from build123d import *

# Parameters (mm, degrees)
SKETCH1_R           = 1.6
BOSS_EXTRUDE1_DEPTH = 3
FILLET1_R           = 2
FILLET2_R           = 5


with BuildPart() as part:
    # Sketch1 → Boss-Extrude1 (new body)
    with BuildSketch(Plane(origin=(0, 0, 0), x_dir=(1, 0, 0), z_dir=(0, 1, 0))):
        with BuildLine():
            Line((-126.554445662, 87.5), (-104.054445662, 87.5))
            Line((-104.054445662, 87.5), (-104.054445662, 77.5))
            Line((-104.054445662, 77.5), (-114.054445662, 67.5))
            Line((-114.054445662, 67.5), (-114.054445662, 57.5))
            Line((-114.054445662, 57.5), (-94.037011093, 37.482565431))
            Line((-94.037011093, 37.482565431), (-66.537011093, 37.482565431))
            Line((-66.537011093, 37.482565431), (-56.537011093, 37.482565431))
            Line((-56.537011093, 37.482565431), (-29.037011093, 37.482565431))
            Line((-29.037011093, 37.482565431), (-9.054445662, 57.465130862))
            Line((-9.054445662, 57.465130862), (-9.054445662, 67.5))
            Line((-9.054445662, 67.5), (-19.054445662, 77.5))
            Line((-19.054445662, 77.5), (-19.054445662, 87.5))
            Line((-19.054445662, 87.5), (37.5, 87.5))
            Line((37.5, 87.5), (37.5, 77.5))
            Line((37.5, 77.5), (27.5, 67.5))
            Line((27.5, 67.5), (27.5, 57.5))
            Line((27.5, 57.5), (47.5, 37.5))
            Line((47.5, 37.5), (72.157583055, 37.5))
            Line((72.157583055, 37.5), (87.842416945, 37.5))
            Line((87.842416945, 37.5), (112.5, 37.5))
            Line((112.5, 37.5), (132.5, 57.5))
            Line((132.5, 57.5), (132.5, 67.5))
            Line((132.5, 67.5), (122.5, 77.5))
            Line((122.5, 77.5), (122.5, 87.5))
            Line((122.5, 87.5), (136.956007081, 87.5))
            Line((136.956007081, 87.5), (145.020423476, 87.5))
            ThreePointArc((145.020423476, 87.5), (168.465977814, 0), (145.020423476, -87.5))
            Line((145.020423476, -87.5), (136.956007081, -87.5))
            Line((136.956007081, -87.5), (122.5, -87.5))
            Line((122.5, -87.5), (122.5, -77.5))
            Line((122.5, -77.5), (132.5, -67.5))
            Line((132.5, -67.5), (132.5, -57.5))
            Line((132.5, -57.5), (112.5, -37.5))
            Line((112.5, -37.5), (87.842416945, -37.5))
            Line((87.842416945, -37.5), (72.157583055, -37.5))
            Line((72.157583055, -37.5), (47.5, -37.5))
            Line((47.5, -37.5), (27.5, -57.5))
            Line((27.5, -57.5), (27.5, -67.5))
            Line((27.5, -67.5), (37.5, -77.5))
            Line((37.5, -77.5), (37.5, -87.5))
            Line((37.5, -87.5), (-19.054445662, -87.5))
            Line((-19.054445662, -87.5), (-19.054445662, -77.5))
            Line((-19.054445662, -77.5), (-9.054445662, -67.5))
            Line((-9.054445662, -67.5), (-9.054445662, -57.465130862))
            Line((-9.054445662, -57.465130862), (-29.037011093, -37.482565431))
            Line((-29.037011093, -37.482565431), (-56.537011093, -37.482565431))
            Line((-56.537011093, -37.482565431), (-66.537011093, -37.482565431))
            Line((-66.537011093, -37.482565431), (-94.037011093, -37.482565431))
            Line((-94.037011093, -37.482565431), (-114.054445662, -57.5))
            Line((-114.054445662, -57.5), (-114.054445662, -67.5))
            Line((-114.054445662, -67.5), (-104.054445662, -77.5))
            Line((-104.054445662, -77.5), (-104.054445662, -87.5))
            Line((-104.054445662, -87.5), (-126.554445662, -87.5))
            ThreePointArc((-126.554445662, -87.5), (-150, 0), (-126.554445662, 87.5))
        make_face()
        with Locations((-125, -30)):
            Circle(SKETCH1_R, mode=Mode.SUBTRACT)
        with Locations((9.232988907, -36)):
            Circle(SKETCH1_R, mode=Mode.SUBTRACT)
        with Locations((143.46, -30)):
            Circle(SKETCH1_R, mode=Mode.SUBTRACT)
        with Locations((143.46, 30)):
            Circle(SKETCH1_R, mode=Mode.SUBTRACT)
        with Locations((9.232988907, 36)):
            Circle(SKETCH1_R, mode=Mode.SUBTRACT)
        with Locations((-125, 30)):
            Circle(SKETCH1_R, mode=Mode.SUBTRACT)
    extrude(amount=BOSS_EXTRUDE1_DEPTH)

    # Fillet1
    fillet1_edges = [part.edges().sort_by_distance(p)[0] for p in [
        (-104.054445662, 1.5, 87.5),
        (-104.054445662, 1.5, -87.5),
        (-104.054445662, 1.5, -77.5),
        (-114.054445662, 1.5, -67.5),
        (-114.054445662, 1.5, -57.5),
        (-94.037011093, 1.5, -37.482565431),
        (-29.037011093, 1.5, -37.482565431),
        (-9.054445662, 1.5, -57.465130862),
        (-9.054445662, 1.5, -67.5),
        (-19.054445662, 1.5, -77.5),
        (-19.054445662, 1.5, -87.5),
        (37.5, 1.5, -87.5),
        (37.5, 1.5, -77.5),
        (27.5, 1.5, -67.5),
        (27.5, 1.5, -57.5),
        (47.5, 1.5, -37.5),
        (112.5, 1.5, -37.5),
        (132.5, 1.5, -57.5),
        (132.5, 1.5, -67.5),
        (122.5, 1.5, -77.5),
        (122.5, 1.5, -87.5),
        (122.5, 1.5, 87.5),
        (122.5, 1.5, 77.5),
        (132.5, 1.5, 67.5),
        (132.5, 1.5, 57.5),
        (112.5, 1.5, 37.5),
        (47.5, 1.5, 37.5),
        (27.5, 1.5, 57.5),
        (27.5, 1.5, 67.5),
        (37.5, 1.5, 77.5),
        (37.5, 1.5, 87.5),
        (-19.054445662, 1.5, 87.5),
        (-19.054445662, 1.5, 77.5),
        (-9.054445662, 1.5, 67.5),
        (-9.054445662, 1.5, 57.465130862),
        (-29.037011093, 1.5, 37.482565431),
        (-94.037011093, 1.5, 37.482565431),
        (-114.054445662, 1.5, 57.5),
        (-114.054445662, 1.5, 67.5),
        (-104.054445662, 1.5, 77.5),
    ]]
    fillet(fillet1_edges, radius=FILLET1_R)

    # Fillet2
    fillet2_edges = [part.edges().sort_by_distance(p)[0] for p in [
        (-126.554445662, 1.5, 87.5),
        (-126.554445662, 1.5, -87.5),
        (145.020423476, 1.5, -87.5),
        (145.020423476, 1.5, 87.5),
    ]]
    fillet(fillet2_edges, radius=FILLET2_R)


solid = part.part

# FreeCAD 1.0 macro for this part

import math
import FreeCAD as App
import Part
import Sketcher

V = App.Vector
Q = App.Units.Quantity


def edges_at(feature, points):
    """Names of the edges that pass closest to the given points."""
    edges = feature.Shape.Edges
    near = lambda p: min(range(len(edges)), key=lambda i: edges[i].distToShape(Part.Vertex(*p))[0])
    return sorted({f"Edge{near(p) + 1}" for p in points})

doc = App.newDocument("Part")
body = doc.addObject("PartDesign::Body", "Body")

# Sketch on XZ plane
sketch1 = doc.addObject("Sketcher::SketchObject", "Sketch")
body.addObject(sketch1)
sketch1.AttachmentSupport = (doc.XZ_Plane, [""])
sketch1.MapMode = "FlatFace"
sketch1.addGeometry(Part.LineSegment(V(-104.1, -87.5, 0), V(-126.6, -87.5, 0)), False)
sketch1.addGeometry(Part.ArcOfCircle(Part.Circle(V(25, 0, 0), V(0, 0, 1), 175), math.radians(150), math.radians(210)), False)
sketch1.addGeometry(Part.LineSegment(V(-126.6, 87.5, 0), V(-104.1, 87.5, 0)), False)
sketch1.addGeometry(Part.LineSegment(V(-104.1, 87.5, 0), V(-104.1, 77.5, 0)), False)
sketch1.addGeometry(Part.LineSegment(V(-104.1, 77.5, 0), V(-114.1, 67.5, 0)), False)
sketch1.addGeometry(Part.LineSegment(V(-114.1, 67.5, 0), V(-114.1, 57.5, 0)), False)
sketch1.addGeometry(Part.LineSegment(V(-114.1, 57.5, 0), V(-94, 37.5, 0)), False)
sketch1.addGeometry(Part.LineSegment(V(-94, 37.5, 0), V(-29, 37.5, 0)), False)
sketch1.addGeometry(Part.LineSegment(V(-29, 37.5, 0), V(-9.1, 57.5, 0)), False)
sketch1.addGeometry(Part.LineSegment(V(-9.1, 57.5, 0), V(-9.1, 67.5, 0)), False)
sketch1.addGeometry(Part.LineSegment(V(-9.1, 67.5, 0), V(-19.1, 77.5, 0)), False)
sketch1.addGeometry(Part.LineSegment(V(-19.1, 77.5, 0), V(-19.1, 87.5, 0)), False)
sketch1.addGeometry(Part.LineSegment(V(-19.1, 87.5, 0), V(37.5, 87.5, 0)), False)
sketch1.addGeometry(Part.LineSegment(V(37.5, 87.5, 0), V(37.5, 77.5, 0)), False)
sketch1.addGeometry(Part.LineSegment(V(37.5, 77.5, 0), V(27.5, 67.5, 0)), False)
sketch1.addGeometry(Part.LineSegment(V(27.5, 67.5, 0), V(27.5, 57.5, 0)), False)
sketch1.addGeometry(Part.LineSegment(V(27.5, 57.5, 0), V(47.5, 37.5, 0)), False)
sketch1.addGeometry(Part.LineSegment(V(47.5, 37.5, 0), V(112.5, 37.5, 0)), False)
sketch1.addGeometry(Part.LineSegment(V(112.5, 37.5, 0), V(132.5, 57.5, 0)), False)
sketch1.addGeometry(Part.LineSegment(V(132.5, 57.5, 0), V(132.5, 67.5, 0)), False)
sketch1.addGeometry(Part.LineSegment(V(132.5, 67.5, 0), V(122.5, 77.5, 0)), False)
sketch1.addGeometry(Part.LineSegment(V(122.5, 77.5, 0), V(122.5, 87.5, 0)), False)
sketch1.addGeometry(Part.LineSegment(V(122.5, 87.5, 0), V(145, 87.5, 0)), False)
sketch1.addGeometry(Part.ArcOfCircle(Part.Circle(V(-6.5, 0, 0), V(0, 0, 1), 175), math.radians(-30), math.radians(30)), False)
sketch1.addGeometry(Part.LineSegment(V(145, -87.5, 0), V(122.5, -87.5, 0)), False)
sketch1.addGeometry(Part.LineSegment(V(122.5, -87.5, 0), V(122.5, -77.5, 0)), False)
sketch1.addGeometry(Part.LineSegment(V(122.5, -77.5, 0), V(132.5, -67.5, 0)), False)
sketch1.addGeometry(Part.LineSegment(V(132.5, -67.5, 0), V(132.5, -57.5, 0)), False)
sketch1.addGeometry(Part.LineSegment(V(132.5, -57.5, 0), V(112.5, -37.5, 0)), False)
sketch1.addGeometry(Part.LineSegment(V(112.5, -37.5, 0), V(47.5, -37.5, 0)), False)
sketch1.addGeometry(Part.LineSegment(V(47.5, -37.5, 0), V(27.5, -57.5, 0)), False)
sketch1.addGeometry(Part.LineSegment(V(27.5, -57.5, 0), V(27.5, -67.5, 0)), False)
sketch1.addGeometry(Part.LineSegment(V(27.5, -67.5, 0), V(37.5, -77.5, 0)), False)
sketch1.addGeometry(Part.LineSegment(V(37.5, -77.5, 0), V(37.5, -87.5, 0)), False)
sketch1.addGeometry(Part.LineSegment(V(37.5, -87.5, 0), V(-19.1, -87.5, 0)), False)
sketch1.addGeometry(Part.LineSegment(V(-19.1, -87.5, 0), V(-19.1, -77.5, 0)), False)
sketch1.addGeometry(Part.LineSegment(V(-19.1, -77.5, 0), V(-9.1, -67.5, 0)), False)
sketch1.addGeometry(Part.LineSegment(V(-9.1, -67.5, 0), V(-9.1, -57.5, 0)), False)
sketch1.addGeometry(Part.LineSegment(V(-9.1, -57.5, 0), V(-29, -37.5, 0)), False)
sketch1.addGeometry(Part.LineSegment(V(-29, -37.5, 0), V(-94, -37.5, 0)), False)
sketch1.addGeometry(Part.LineSegment(V(-94, -37.5, 0), V(-114.1, -57.5, 0)), False)
sketch1.addGeometry(Part.LineSegment(V(-114.1, -57.5, 0), V(-114.1, -67.5, 0)), False)
sketch1.addGeometry(Part.LineSegment(V(-114.1, -67.5, 0), V(-104.1, -77.5, 0)), False)
sketch1.addGeometry(Part.LineSegment(V(-104.1, -77.5, 0), V(-104.1, -87.5, 0)), False)
sketch1.addGeometry(Part.Circle(V(143.5, 30, 0), V(0, 0, 1), 1.6), False)
sketch1.addGeometry(Part.Circle(V(9.2, 36, 0), V(0, 0, 1), 1.6), False)
sketch1.addGeometry(Part.Circle(V(-125, 30, 0), V(0, 0, 1), 1.6), False)
sketch1.addGeometry(Part.Circle(V(143.5, -30, 0), V(0, 0, 1), 1.6), False)
sketch1.addGeometry(Part.Circle(V(9.2, -36, 0), V(0, 0, 1), 1.6), False)
sketch1.addGeometry(Part.Circle(V(-125, -30, 0), V(0, 0, 1), 1.6), False)
sketch1.addConstraint(Sketcher.Constraint("Coincident", 0, 2, 1, 2))
sketch1.addConstraint(Sketcher.Constraint("Coincident", 1, 1, 2, 1))
sketch1.addConstraint(Sketcher.Constraint("Coincident", 2, 2, 3, 1))
sketch1.addConstraint(Sketcher.Constraint("Coincident", 3, 2, 4, 1))
sketch1.addConstraint(Sketcher.Constraint("Coincident", 4, 2, 5, 1))
sketch1.addConstraint(Sketcher.Constraint("Coincident", 5, 2, 6, 1))
sketch1.addConstraint(Sketcher.Constraint("Coincident", 6, 2, 7, 1))
sketch1.addConstraint(Sketcher.Constraint("Coincident", 7, 2, 8, 1))
sketch1.addConstraint(Sketcher.Constraint("Coincident", 8, 2, 9, 1))
sketch1.addConstraint(Sketcher.Constraint("Coincident", 9, 2, 10, 1))
sketch1.addConstraint(Sketcher.Constraint("Coincident", 10, 2, 11, 1))
sketch1.addConstraint(Sketcher.Constraint("Coincident", 11, 2, 12, 1))
sketch1.addConstraint(Sketcher.Constraint("Coincident", 12, 2, 13, 1))
sketch1.addConstraint(Sketcher.Constraint("Coincident", 13, 2, 14, 1))
sketch1.addConstraint(Sketcher.Constraint("Coincident", 14, 2, 15, 1))
sketch1.addConstraint(Sketcher.Constraint("Coincident", 15, 2, 16, 1))
sketch1.addConstraint(Sketcher.Constraint("Coincident", 16, 2, 17, 1))
sketch1.addConstraint(Sketcher.Constraint("Coincident", 17, 2, 18, 1))
sketch1.addConstraint(Sketcher.Constraint("Coincident", 18, 2, 19, 1))
sketch1.addConstraint(Sketcher.Constraint("Coincident", 19, 2, 20, 1))
sketch1.addConstraint(Sketcher.Constraint("Coincident", 20, 2, 21, 1))
sketch1.addConstraint(Sketcher.Constraint("Coincident", 21, 2, 22, 1))
sketch1.addConstraint(Sketcher.Constraint("Coincident", 22, 2, 23, 2))
sketch1.addConstraint(Sketcher.Constraint("Coincident", 23, 1, 24, 1))
sketch1.addConstraint(Sketcher.Constraint("Coincident", 24, 2, 25, 1))
sketch1.addConstraint(Sketcher.Constraint("Coincident", 25, 2, 26, 1))
sketch1.addConstraint(Sketcher.Constraint("Coincident", 26, 2, 27, 1))
sketch1.addConstraint(Sketcher.Constraint("Coincident", 27, 2, 28, 1))
sketch1.addConstraint(Sketcher.Constraint("Coincident", 28, 2, 29, 1))
sketch1.addConstraint(Sketcher.Constraint("Coincident", 29, 2, 30, 1))
sketch1.addConstraint(Sketcher.Constraint("Coincident", 30, 2, 31, 1))
sketch1.addConstraint(Sketcher.Constraint("Coincident", 31, 2, 32, 1))
sketch1.addConstraint(Sketcher.Constraint("Coincident", 32, 2, 33, 1))
sketch1.addConstraint(Sketcher.Constraint("Coincident", 33, 2, 34, 1))
sketch1.addConstraint(Sketcher.Constraint("Coincident", 34, 2, 35, 1))
sketch1.addConstraint(Sketcher.Constraint("Coincident", 35, 2, 36, 1))
sketch1.addConstraint(Sketcher.Constraint("Coincident", 36, 2, 37, 1))
sketch1.addConstraint(Sketcher.Constraint("Coincident", 37, 2, 38, 1))
sketch1.addConstraint(Sketcher.Constraint("Coincident", 38, 2, 39, 1))
sketch1.addConstraint(Sketcher.Constraint("Coincident", 39, 2, 40, 1))
sketch1.addConstraint(Sketcher.Constraint("Coincident", 40, 2, 41, 1))
sketch1.addConstraint(Sketcher.Constraint("Coincident", 41, 2, 42, 1))
sketch1.addConstraint(Sketcher.Constraint("Coincident", 42, 2, 43, 1))
sketch1.addConstraint(Sketcher.Constraint("Coincident", 43, 2, 0, 1))
sketch1.addConstraint(Sketcher.Constraint("Horizontal", 0))
sketch1.addConstraint(Sketcher.Constraint("Horizontal", 2))
sketch1.addConstraint(Sketcher.Constraint("Vertical", 3))
sketch1.addConstraint(Sketcher.Constraint("Vertical", 5))
sketch1.addConstraint(Sketcher.Constraint("Horizontal", 7))
sketch1.addConstraint(Sketcher.Constraint("Vertical", 9))
sketch1.addConstraint(Sketcher.Constraint("Vertical", 11))
sketch1.addConstraint(Sketcher.Constraint("Horizontal", 12))
sketch1.addConstraint(Sketcher.Constraint("Vertical", 13))
sketch1.addConstraint(Sketcher.Constraint("Vertical", 15))
sketch1.addConstraint(Sketcher.Constraint("Horizontal", 17))
sketch1.addConstraint(Sketcher.Constraint("Vertical", 19))
sketch1.addConstraint(Sketcher.Constraint("Vertical", 21))
sketch1.addConstraint(Sketcher.Constraint("Horizontal", 22))
sketch1.addConstraint(Sketcher.Constraint("Horizontal", 24))
sketch1.addConstraint(Sketcher.Constraint("Vertical", 25))
sketch1.addConstraint(Sketcher.Constraint("Vertical", 27))
sketch1.addConstraint(Sketcher.Constraint("Horizontal", 29))
sketch1.addConstraint(Sketcher.Constraint("Vertical", 31))
sketch1.addConstraint(Sketcher.Constraint("Vertical", 33))
sketch1.addConstraint(Sketcher.Constraint("Horizontal", 34))
sketch1.addConstraint(Sketcher.Constraint("Vertical", 35))
sketch1.addConstraint(Sketcher.Constraint("Vertical", 37))
sketch1.addConstraint(Sketcher.Constraint("Horizontal", 39))
sketch1.addConstraint(Sketcher.Constraint("Vertical", 41))
sketch1.addConstraint(Sketcher.Constraint("Vertical", 43))
sketch1.addConstraint(Sketcher.Constraint("Equal", 1, 23))
sketch1.addConstraint(Sketcher.Constraint("Equal", 44, 45))
sketch1.addConstraint(Sketcher.Constraint("Equal", 45, 46))
sketch1.addConstraint(Sketcher.Constraint("Equal", 46, 47))
sketch1.addConstraint(Sketcher.Constraint("Equal", 47, 48))
sketch1.addConstraint(Sketcher.Constraint("Equal", 48, 49))
sketch1.addConstraint(Sketcher.Constraint("Symmetric", 44, 3, 47, 3, -1))
sketch1.addConstraint(Sketcher.Constraint("Symmetric", 45, 3, 48, 3, -1))
sketch1.addConstraint(Sketcher.Constraint("Symmetric", 46, 3, 49, 3, -1))
sketch1.addConstraint(Sketcher.Constraint("Symmetric", 0, 2, 1, 1, -1))
sketch1.addConstraint(Sketcher.Constraint("Symmetric", 22, 2, 23, 1, -1))
sketch1.addConstraint(Sketcher.Constraint("Symmetric", 20, 2, 25, 2, -1))
sketch1.addConstraint(Sketcher.Constraint("Symmetric", 19, 2, 26, 2, -1))
sketch1.addConstraint(Sketcher.Constraint("Symmetric", 17, 2, 28, 2, -1))
sketch1.addConstraint(Sketcher.Constraint("Symmetric", 15, 2, 30, 2, -1))
sketch1.addConstraint(Sketcher.Constraint("Symmetric", 13, 2, 32, 2, -1))
sketch1.addConstraint(Sketcher.Constraint("Symmetric", 11, 2, 34, 2, -1))
sketch1.addConstraint(Sketcher.Constraint("Symmetric", 9, 2, 36, 2, -1))
sketch1.addConstraint(Sketcher.Constraint("Symmetric", 7, 2, 38, 2, -1))
sketch1.addConstraint(Sketcher.Constraint("Symmetric", 5, 2, 40, 2, -1))
sketch1.addConstraint(Sketcher.Constraint("Symmetric", 3, 2, 42, 2, -1))
sketch1.addConstraint(Sketcher.Constraint("Perpendicular", 4, 6))
sketch1.addConstraint(Sketcher.Constraint("Perpendicular", 6, 8))
sketch1.addConstraint(Sketcher.Constraint("Perpendicular", 8, 10))
sketch1.addConstraint(Sketcher.Constraint("Perpendicular", 10, 14))
sketch1.addConstraint(Sketcher.Constraint("Perpendicular", 14, 16))
sketch1.addConstraint(Sketcher.Constraint("Perpendicular", 16, 18))
sketch1.addConstraint(Sketcher.Constraint("Perpendicular", 18, 20))
sketch1.addConstraint(Sketcher.Constraint("Perpendicular", 20, 26))
sketch1.addConstraint(Sketcher.Constraint("Perpendicular", 26, 28))
sketch1.addConstraint(Sketcher.Constraint("Perpendicular", 28, 30))
sketch1.addConstraint(Sketcher.Constraint("Perpendicular", 30, 32))
sketch1.addConstraint(Sketcher.Constraint("Perpendicular", 32, 36))
sketch1.addConstraint(Sketcher.Constraint("Perpendicular", 36, 38))
sketch1.addConstraint(Sketcher.Constraint("Perpendicular", 38, 40))
sketch1.addConstraint(Sketcher.Constraint("Perpendicular", 40, 42))
sketch1.addConstraint(Sketcher.Constraint("Horizontal", 44, 3, 46, 3))
sketch1.addConstraint(Sketcher.Constraint("Horizontal", 4, 2, 9, 2))
sketch1.addConstraint(Sketcher.Constraint("Horizontal", 3, 2, 10, 2))
sketch1.addConstraint(Sketcher.Constraint("Horizontal", 2, 2, 11, 2))
sketch1.addConstraint(Sketcher.Constraint("Horizontal", 10, 2, 13, 2))
sketch1.addConstraint(Sketcher.Constraint("Horizontal", 9, 2, 14, 2))
sketch1.addConstraint(Sketcher.Constraint("Horizontal", 5, 2, 15, 2))
sketch1.addConstraint(Sketcher.Constraint("Horizontal", 15, 2, 18, 2))
sketch1.addConstraint(Sketcher.Constraint("Horizontal", 14, 2, 19, 2))
sketch1.addConstraint(Sketcher.Constraint("Horizontal", 13, 2, 20, 2))
sketch1.addConstraint(Sketcher.Constraint("Horizontal", 12, 2, 21, 2))
sketch1.addConstraint(Sketcher.Constraint("Equal", 7, 17))
sketch1.addConstraint(Sketcher.Constraint("Equal", 3, 5))
sketch1.addConstraint(Sketcher.Constraint("Radius", 1, Q("175 mm")))
sketch1.addConstraint(Sketcher.Constraint("Diameter", 44, Q("3.2 mm")))
sketch1.addConstraint(Sketcher.Constraint("DistanceX", 7, 1, 7, 2, Q("65 mm")))
sketch1.addConstraint(Sketcher.Constraint("DistanceY", 3, 2, 3, 1, Q("10 mm")))
sketch1.addConstraint(Sketcher.Constraint("DistanceX", 0, 2, 0, 1, Q("22.5 mm")))
sketch1.addConstraint(Sketcher.Constraint("DistanceX", -1, 1, 1, 3, Q("25 mm")))
sketch1.addConstraint(Sketcher.Constraint("DistanceY", -1, 1, 44, 3, Q("30 mm")))
sketch1.addConstraint(Sketcher.Constraint("DistanceY", -1, 1, 45, 3, Q("36 mm")))
sketch1.addConstraint(Sketcher.Constraint("DistanceX", 46, 3, -1, 1, Q("125 mm")))
sketch1.addConstraint(Sketcher.Constraint("DistanceX", 4, 2, 3, 2, Q("10 mm")))
sketch1.addConstraint(Sketcher.Constraint("DistanceX", 15, 2, 16, 2, Q("20 mm")))
sketch1.addConstraint(Sketcher.Constraint("DistanceY", 24, 2, 17, 2, Q("125 mm")))
sketch1.addConstraint(Sketcher.Constraint("DistanceX", -1, 1, 12, 2, Q("37.5 mm")))
sketch1.addConstraint(Sketcher.Constraint("DistanceX", -1, 1, 44, 3, Q("143.46 mm")))
sketch1.addConstraint(Sketcher.Constraint("DistanceX", 7, 2, 45, 3, Q("38.27 mm")))
sketch1.addConstraint(Sketcher.Constraint("DistanceY", 9, 1, 9, 2, Q("10.034869 mm")))
sketch1.addConstraint(Sketcher.Constraint("DistanceX", 12, 1, 12, 2, Q("56.554446 mm")))
sketch1.addConstraint(Sketcher.Constraint("DistanceX", 22, 1, 22, 2, Q("22.520423 mm")))
pad1 = doc.addObject("PartDesign::Pad", "Pad")
body.addObject(pad1)
pad1.Profile = sketch1
pad1.Length = 3
pad1.Reversed = True
doc.recompute()

fillet = doc.addObject("PartDesign::Fillet", "Fillet")
body.addObject(fillet)
fillet.Base = (pad1, edges_at(pad1, [
    (-104.054, 1.5, 87.5),
    (-104.054, 1.5, -87.5),
    (-104.054, 1.5, -77.5),
    (-114.054, 1.5, -67.5),
    (-114.054, 1.5, -57.5),
    (-94.037, 1.5, -37.483),
    (-29.037, 1.5, -37.483),
    (-9.054, 1.5, -57.465),
    (-9.054, 1.5, -67.5),
    (-19.054, 1.5, -77.5),
    (-19.054, 1.5, -87.5),
    (37.5, 1.5, -87.5),
    (37.5, 1.5, -77.5),
    (27.5, 1.5, -67.5),
    (27.5, 1.5, -57.5),
    (47.5, 1.5, -37.5),
    (112.5, 1.5, -37.5),
    (132.5, 1.5, -57.5),
    (132.5, 1.5, -67.5),
    (122.5, 1.5, -77.5),
    (122.5, 1.5, -87.5),
    (122.5, 1.5, 87.5),
    (122.5, 1.5, 77.5),
    (132.5, 1.5, 67.5),
    (132.5, 1.5, 57.5),
    (112.5, 1.5, 37.5),
    (47.5, 1.5, 37.5),
    (27.5, 1.5, 57.5),
    (27.5, 1.5, 67.5),
    (37.5, 1.5, 77.5),
    (37.5, 1.5, 87.5),
    (-19.054, 1.5, 87.5),
    (-19.054, 1.5, 77.5),
    (-9.054, 1.5, 67.5),
    (-9.054, 1.5, 57.465),
    (-29.037, 1.5, 37.483),
    (-94.037, 1.5, 37.483),
    (-114.054, 1.5, 57.5),
    (-114.054, 1.5, 67.5),
    (-104.054, 1.5, 77.5),
]))
fillet.Radius = 2
doc.recompute()

fillet2 = doc.addObject("PartDesign::Fillet", "Fillet001")
body.addObject(fillet2)
fillet2.Base = (fillet, edges_at(fillet, [
    (-126.554, 1.5, 87.5),
    (-126.554, 1.5, -87.5),
    (145.02, 1.5, -87.5),
    (145.02, 1.5, 87.5),
]))
fillet2.Radius = 5

doc.recompute()
